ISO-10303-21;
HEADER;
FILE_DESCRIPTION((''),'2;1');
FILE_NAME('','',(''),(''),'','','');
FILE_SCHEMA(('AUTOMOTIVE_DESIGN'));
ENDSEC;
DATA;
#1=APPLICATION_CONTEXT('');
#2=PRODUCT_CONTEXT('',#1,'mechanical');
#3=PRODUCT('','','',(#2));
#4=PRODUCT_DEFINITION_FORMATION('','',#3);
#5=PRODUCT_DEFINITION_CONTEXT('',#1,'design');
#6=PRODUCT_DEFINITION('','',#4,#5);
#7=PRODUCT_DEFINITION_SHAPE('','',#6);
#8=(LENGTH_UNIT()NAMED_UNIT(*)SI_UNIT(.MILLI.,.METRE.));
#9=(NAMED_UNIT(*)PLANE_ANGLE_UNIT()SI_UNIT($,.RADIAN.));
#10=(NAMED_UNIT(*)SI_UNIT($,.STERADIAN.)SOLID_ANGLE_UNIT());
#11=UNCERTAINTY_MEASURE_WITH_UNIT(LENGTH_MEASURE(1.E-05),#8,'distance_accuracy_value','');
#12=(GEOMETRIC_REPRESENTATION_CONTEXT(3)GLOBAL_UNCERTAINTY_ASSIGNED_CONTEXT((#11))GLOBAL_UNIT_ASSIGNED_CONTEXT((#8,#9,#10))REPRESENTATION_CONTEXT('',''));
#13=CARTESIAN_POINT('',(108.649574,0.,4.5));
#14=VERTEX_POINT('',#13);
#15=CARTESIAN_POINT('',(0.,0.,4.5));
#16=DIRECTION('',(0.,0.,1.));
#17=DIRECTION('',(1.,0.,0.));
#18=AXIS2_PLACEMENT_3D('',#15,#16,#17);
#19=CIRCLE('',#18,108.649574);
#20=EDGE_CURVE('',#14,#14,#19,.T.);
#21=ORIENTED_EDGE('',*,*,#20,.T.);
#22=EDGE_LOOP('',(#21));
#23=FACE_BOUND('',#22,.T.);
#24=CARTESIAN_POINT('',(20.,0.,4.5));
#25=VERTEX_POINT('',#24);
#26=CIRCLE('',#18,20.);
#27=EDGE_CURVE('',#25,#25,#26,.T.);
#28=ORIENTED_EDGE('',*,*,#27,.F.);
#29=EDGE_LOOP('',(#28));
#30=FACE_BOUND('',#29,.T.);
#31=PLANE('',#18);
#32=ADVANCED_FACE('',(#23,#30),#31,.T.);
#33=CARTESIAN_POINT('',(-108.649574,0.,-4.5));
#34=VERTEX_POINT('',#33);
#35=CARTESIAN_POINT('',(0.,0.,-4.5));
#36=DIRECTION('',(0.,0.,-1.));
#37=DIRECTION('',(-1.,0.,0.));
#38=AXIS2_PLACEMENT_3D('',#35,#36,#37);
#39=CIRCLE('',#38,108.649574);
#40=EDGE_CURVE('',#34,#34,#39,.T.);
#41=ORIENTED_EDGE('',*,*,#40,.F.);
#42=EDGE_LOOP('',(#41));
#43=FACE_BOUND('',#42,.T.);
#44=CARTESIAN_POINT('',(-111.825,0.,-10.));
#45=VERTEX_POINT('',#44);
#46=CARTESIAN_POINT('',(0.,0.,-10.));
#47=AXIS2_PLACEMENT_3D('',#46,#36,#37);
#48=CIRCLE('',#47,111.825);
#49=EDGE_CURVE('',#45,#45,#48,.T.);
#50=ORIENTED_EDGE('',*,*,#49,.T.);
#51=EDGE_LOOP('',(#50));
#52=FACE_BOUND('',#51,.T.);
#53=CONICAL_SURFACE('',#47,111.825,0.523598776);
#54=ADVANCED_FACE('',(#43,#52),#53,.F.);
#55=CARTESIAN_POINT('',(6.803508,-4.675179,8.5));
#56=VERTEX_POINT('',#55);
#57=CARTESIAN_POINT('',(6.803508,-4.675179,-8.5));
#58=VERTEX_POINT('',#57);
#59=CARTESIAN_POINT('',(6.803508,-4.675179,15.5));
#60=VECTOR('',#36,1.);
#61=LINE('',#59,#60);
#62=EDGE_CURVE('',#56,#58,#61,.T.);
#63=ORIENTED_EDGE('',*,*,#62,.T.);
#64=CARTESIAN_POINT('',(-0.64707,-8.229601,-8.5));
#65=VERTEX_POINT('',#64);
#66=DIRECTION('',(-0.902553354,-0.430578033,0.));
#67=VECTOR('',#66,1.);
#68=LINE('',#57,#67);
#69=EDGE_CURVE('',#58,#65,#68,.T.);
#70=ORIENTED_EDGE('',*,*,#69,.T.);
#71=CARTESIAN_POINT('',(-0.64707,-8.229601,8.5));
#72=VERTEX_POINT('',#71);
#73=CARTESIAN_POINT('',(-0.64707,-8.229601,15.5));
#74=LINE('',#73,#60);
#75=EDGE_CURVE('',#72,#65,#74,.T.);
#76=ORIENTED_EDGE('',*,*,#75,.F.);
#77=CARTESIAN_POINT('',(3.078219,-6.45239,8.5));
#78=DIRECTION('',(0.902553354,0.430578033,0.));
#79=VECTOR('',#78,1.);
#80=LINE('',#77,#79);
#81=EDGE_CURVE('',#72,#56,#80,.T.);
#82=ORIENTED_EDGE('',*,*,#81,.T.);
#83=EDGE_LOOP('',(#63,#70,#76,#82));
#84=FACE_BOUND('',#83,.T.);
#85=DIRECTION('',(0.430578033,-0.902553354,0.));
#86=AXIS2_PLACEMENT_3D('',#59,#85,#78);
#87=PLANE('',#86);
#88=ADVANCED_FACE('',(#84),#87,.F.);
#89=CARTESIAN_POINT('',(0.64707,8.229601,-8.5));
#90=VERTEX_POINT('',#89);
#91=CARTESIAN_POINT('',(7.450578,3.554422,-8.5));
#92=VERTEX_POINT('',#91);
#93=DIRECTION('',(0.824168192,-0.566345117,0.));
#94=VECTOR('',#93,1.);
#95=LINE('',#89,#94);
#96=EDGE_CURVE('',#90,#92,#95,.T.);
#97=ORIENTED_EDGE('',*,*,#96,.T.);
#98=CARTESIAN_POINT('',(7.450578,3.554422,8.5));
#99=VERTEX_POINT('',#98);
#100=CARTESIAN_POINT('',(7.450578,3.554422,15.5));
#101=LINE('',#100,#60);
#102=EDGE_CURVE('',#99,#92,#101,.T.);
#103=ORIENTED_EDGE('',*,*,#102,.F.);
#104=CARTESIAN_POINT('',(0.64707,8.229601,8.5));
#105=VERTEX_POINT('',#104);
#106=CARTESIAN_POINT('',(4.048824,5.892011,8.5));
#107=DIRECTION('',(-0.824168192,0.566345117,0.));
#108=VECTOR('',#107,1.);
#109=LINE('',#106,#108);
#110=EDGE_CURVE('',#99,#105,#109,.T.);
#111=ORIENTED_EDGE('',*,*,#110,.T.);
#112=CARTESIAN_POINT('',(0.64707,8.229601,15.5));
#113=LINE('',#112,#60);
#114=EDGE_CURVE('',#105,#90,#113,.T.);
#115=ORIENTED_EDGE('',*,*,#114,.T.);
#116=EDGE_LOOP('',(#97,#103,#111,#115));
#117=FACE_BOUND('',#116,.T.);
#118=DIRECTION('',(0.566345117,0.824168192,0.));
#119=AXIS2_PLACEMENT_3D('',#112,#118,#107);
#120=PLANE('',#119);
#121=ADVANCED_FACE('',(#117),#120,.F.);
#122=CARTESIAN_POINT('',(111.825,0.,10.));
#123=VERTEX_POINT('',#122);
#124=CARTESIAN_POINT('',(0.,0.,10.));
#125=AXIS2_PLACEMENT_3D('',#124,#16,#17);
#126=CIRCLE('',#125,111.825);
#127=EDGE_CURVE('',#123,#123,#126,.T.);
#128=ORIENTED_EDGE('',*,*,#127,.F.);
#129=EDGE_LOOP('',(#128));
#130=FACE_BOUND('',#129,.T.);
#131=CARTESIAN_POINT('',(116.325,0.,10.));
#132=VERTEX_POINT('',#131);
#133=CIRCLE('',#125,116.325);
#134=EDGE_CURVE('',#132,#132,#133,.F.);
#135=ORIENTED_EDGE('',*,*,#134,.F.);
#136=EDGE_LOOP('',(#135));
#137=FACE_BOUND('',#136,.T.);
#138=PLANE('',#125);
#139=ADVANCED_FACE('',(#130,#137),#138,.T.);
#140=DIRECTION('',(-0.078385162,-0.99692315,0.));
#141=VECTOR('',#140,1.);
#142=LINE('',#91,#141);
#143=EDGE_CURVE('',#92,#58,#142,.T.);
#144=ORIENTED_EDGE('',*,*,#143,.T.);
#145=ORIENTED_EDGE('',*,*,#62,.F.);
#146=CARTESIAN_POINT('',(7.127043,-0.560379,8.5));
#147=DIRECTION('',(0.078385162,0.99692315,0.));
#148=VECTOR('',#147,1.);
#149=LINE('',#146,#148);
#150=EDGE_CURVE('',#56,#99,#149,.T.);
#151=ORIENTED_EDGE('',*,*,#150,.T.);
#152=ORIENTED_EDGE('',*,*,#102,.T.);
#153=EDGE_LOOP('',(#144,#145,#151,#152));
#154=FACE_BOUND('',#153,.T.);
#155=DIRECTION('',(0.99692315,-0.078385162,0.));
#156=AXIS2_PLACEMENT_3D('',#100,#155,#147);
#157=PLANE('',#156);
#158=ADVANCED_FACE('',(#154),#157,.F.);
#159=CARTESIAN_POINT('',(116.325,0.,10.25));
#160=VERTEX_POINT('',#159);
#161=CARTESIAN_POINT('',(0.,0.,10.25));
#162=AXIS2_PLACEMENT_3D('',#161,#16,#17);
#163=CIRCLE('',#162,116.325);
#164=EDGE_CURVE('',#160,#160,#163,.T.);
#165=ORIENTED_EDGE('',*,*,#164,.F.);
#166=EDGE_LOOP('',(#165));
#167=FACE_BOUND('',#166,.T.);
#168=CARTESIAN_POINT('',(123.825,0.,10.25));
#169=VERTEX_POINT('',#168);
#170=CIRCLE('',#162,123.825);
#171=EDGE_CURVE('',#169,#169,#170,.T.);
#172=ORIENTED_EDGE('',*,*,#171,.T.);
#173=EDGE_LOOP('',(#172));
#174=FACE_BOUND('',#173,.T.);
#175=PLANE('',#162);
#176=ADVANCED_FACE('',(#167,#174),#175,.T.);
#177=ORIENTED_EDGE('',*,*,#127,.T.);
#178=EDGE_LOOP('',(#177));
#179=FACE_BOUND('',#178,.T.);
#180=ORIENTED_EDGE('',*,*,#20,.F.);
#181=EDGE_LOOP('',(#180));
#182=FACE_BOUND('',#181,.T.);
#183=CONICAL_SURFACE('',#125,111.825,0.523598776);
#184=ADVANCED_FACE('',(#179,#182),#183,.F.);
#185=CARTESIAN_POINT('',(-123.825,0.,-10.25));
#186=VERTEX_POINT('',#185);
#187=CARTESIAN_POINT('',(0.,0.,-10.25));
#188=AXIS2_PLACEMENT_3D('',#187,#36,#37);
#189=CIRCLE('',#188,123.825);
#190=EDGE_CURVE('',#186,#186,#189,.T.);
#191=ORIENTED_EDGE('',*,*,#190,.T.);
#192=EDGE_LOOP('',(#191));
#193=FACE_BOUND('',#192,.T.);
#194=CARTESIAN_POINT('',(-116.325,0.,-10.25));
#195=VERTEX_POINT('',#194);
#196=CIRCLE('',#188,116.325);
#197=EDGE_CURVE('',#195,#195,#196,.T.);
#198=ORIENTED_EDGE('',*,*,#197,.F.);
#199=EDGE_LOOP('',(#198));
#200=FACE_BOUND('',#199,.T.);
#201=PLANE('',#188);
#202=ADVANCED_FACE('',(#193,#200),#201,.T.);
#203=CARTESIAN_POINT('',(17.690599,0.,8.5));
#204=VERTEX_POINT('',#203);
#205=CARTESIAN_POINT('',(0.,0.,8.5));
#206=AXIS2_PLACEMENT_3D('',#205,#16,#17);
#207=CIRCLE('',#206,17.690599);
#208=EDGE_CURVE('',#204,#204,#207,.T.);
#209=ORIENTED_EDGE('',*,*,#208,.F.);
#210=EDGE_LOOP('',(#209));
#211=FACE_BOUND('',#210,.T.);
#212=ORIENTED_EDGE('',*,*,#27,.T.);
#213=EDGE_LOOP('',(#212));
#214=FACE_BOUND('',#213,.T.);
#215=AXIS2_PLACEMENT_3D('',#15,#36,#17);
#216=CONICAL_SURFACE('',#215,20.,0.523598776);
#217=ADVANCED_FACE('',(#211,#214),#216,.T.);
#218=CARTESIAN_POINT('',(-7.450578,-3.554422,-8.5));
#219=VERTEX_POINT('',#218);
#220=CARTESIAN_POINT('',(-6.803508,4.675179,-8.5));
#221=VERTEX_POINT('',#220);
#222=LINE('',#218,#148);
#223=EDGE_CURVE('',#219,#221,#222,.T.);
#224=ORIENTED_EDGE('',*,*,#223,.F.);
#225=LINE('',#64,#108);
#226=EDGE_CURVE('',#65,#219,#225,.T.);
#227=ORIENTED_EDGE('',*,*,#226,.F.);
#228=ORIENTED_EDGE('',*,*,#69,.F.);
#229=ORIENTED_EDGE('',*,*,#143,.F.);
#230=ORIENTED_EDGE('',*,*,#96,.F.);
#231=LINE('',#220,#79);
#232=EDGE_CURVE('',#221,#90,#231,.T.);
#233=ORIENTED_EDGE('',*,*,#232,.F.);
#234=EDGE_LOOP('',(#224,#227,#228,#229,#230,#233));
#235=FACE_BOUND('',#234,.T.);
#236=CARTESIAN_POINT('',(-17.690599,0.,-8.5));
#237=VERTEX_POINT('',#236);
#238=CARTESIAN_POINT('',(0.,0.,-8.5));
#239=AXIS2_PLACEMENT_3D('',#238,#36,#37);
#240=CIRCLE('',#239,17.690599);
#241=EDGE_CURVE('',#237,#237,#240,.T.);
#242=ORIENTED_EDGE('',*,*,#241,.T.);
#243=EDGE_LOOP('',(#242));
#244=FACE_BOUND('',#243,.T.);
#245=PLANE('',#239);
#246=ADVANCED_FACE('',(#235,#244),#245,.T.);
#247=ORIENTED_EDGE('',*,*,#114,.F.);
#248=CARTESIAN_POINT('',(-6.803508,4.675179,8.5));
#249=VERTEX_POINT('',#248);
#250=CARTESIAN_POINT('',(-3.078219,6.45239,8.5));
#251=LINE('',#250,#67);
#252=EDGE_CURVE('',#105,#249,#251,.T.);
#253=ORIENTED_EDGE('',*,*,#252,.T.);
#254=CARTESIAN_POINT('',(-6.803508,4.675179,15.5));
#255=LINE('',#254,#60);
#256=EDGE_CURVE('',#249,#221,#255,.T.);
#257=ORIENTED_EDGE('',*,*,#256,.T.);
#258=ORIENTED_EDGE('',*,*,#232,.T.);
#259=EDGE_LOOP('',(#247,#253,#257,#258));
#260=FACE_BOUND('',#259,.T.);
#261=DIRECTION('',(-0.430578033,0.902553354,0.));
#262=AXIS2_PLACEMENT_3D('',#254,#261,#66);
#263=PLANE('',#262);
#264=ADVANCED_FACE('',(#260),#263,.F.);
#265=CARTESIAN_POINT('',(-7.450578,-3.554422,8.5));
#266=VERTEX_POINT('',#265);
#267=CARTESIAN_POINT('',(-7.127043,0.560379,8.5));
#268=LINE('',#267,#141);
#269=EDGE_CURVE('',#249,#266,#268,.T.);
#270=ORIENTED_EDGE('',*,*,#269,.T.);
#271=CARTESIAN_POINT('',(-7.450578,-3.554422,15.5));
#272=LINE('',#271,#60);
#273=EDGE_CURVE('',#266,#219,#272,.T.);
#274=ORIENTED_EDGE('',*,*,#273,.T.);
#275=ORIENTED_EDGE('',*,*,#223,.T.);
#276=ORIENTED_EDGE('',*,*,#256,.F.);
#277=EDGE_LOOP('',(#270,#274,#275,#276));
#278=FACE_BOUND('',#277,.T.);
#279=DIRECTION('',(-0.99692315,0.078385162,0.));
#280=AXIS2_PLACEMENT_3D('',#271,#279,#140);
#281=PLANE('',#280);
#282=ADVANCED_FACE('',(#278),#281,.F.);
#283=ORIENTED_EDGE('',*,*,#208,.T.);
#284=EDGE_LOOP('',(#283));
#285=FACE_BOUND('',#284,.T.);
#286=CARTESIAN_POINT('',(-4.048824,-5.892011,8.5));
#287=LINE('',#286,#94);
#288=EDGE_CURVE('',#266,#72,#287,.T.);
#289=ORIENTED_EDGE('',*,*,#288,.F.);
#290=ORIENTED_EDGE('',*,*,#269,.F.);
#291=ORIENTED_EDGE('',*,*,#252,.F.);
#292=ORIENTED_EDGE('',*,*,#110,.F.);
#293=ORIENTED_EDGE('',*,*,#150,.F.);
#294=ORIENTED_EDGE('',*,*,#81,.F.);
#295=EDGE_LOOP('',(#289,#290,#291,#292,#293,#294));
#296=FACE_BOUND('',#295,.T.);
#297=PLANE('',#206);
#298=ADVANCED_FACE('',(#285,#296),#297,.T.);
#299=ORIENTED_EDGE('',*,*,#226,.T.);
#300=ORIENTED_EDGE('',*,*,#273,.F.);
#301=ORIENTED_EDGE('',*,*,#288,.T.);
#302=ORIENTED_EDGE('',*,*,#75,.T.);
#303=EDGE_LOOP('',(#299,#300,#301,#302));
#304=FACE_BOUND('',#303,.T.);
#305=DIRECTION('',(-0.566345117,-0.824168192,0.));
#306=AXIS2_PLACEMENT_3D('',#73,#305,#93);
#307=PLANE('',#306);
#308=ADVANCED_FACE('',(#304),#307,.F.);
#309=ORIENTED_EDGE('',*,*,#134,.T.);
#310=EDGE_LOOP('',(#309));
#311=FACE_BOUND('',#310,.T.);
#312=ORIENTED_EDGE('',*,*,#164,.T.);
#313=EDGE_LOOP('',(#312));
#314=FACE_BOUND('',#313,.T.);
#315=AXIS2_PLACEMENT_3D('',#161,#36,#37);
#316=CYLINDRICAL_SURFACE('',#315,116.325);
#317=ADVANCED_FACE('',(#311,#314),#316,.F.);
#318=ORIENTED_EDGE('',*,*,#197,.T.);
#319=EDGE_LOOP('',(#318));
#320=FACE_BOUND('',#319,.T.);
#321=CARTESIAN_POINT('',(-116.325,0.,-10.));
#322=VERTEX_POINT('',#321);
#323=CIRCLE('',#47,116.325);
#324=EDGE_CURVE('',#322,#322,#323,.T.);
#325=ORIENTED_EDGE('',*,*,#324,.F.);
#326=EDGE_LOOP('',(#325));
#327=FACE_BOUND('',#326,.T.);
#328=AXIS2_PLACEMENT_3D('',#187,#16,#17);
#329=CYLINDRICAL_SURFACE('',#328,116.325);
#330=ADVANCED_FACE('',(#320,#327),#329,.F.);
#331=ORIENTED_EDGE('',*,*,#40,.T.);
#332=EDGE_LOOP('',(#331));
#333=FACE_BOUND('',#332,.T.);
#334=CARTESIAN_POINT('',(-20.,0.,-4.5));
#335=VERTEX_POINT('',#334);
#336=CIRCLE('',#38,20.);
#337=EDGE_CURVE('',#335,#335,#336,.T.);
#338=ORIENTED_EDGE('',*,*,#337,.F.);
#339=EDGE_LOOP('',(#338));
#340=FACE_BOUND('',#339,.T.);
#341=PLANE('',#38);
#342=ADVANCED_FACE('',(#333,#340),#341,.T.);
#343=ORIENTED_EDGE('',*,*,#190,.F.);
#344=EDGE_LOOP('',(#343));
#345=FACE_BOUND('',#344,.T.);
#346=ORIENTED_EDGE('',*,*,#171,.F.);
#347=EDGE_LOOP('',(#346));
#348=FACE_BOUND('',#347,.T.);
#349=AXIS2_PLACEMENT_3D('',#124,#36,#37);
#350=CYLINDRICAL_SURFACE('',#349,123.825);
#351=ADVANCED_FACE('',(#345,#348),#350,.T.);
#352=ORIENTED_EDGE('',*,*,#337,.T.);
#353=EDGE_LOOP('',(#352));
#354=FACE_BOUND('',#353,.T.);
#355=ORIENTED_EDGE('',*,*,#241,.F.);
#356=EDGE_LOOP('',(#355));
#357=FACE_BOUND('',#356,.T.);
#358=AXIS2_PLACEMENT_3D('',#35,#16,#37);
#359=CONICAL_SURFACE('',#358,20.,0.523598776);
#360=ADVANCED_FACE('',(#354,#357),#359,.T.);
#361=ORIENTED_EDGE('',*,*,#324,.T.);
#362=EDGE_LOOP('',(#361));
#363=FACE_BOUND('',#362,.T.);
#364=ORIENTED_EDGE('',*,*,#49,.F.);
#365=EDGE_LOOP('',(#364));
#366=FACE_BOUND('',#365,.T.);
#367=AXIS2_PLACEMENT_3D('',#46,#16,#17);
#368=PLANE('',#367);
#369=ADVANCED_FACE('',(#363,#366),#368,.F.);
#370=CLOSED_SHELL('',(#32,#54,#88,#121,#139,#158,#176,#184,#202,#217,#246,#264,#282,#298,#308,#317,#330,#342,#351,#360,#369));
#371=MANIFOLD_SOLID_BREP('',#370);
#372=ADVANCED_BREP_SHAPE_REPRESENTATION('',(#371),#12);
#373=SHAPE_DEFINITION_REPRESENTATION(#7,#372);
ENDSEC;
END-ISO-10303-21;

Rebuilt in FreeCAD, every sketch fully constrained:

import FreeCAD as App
import Part
import Sketcher
from FreeCAD import Vector


def faces_at(feature, points):
    """Names of the faces that lie closest to the given points."""
    faces = feature.Shape.Faces
    near = lambda p: min(range(len(faces)), key=lambda i: faces[i].distToShape(Part.Vertex(*p))[0])
    return sorted({f"Face{near(p) + 1}" for p in points})


def add_polygon(sketch, points):
    """Adds a closed chain of lines whose ends are joined by coincident constraints."""
    first, n = sketch.GeometryCount, len(points)
    for a, b in zip(points, points[1:] + points[:1]):
        sketch.addGeometry(Part.LineSegment(App.Vector(*a, 0), App.Vector(*b, 0)), False)
    for i in range(n):
        sketch.addConstraint(Sketcher.Constraint("Coincident", first + i, 2, first + (i + 1) % n, 1))

doc = App.newDocument("Part")
body = doc.addObject("PartDesign::Body", "Body")

sketch1 = body.newObject("Sketcher::SketchObject", "Sketch")
sketch1.AttachmentSupport = (doc.getObject("XY_Plane"), [""])
sketch1.MapMode = "FlatFace"
sketch1.addGeometry(Part.Circle(Vector(0, 0, 0), Vector(0, 0, 1), 124), False)
sketch1.addConstraint([
    Sketcher.Constraint("Coincident", 0, 3, -1, 1),
    Sketcher.Constraint("Diameter", 0, 247.65),
])
pad1 = body.newObject("PartDesign::Pad", "Pad")
pad1.Profile = sketch1
pad1.Length = 20
pad1.Midplane = True
body2 = doc.addObject("PartDesign::Body", "Body001")

sketch2 = body2.newObject("Sketcher::SketchObject", "Sketch001")
sketch2.AttachmentSupport = (doc.getObject("XY_Plane001"), [""])
sketch2.MapMode = "FlatFace"
sketch2.AttachmentOffset = App.Placement(Vector(0, 0, 10), App.Rotation())
sketch2.addGeometry(Part.Circle(Vector(0, 0, 0), Vector(0, 0, 1), 112), False)
sketch2.addConstraint([
    Sketcher.Constraint("Coincident", 0, 3, -1, 1),
    Sketcher.Constraint("Diameter", 0, 223.65),
])
pad2 = body2.newObject("PartDesign::Pad", "Pad001")
pad2.Profile = sketch2
pad2.Length = 5.5
pad2.Reversed = True
doc.recompute()

datumplane = body2.newObject("PartDesign::Plane", "DatumPlane")
datumplane.AttachmentSupport = (doc.getObject("XY_Plane001"), [""])
datumplane.MapMode = "FlatFace"
datumplane.AttachmentOffset = App.Placement(Vector(0, 0, 10), App.Rotation())
draft = body2.newObject("PartDesign::Draft", "Draft")
draft.Base = (pad2, faces_at(pad2, [(-111.825, 0, 7.25)]))
draft.NeutralPlane = (datumplane, [""])
draft.Angle = 30
draft.Reversed = True
doc.recompute()

boolean = body.newObject("PartDesign::Boolean", "Boolean")
boolean.Type = "Cut"
boolean.addObjects([body2])
body3 = doc.addObject("PartDesign::Body", "Body002")

sketch3 = body3.newObject("Sketcher::SketchObject", "Sketch002")
sketch3.AttachmentSupport = (doc.getObject("XY_Plane002"), [""])
sketch3.MapMode = "FlatFace"
sketch3.AttachmentOffset = App.Placement(Vector(0, 0, -10), App.Rotation())
sketch3.addGeometry(Part.Circle(Vector(0, 0, 0), Vector(0, 0, 1), 112), False)
sketch3.addConstraint([
    Sketcher.Constraint("Coincident", 0, 3, -1, 1),
    Sketcher.Constraint("Diameter", 0, 223.65),
])
pad3 = body3.newObject("PartDesign::Pad", "Pad002")
pad3.Profile = sketch3
pad3.Length = 5.5
doc.recompute()

datumplane2 = body3.newObject("PartDesign::Plane", "DatumPlane001")
datumplane2.AttachmentSupport = (doc.getObject("XY_Plane002"), [""])
datumplane2.MapMode = "FlatFace"
datumplane2.AttachmentOffset = App.Placement(Vector(0, 0, -10), App.Rotation())
draft2 = body3.newObject("PartDesign::Draft", "Draft001")
draft2.Base = (pad3, faces_at(pad3, [(111.825, 0, -7.25)]))
draft2.NeutralPlane = (datumplane2, [""])
draft2.Angle = 30
draft2.Reversed = False
doc.recompute()

boolean2 = body.newObject("PartDesign::Boolean", "Boolean001")
boolean2.Type = "Cut"
boolean2.addObjects([body3])

sketch4 = body.newObject("Sketcher::SketchObject", "Sketch003")
sketch4.AttachmentSupport = (doc.getObject("XY_Plane"), [""])
sketch4.MapMode = "FlatFace"
sketch4.AttachmentOffset = App.Placement(Vector(0, 0, 4.5), App.Rotation())
sketch4.addGeometry(Part.Circle(Vector(0, 0, 0), Vector(0, 0, 1), 20), False)
sketch4.addConstraint([
    Sketcher.Constraint("Coincident", 0, 3, -1, 1),
    Sketcher.Constraint("Diameter", 0, 40.0),
])
pad4 = body.newObject("PartDesign::Pad", "Pad003")
pad4.Profile = sketch4
pad4.Length = 4
pad4.TaperAngle = -30

sketch5 = body.newObject("Sketcher::SketchObject", "Sketch004")
sketch5.AttachmentSupport = (doc.getObject("XY_Plane"), [""])
sketch5.MapMode = "FlatFace"
sketch5.AttachmentOffset = App.Placement(Vector(0, 0, -4.5), App.Rotation())
sketch5.addGeometry(Part.Circle(Vector(0, 0, 0), Vector(0, 0, 1), 20), False)
sketch5.addConstraint([
    Sketcher.Constraint("Coincident", 0, 3, -1, 1),
    Sketcher.Constraint("Diameter", 0, 40.0),
])
pad5 = body.newObject("PartDesign::Pad", "Pad004")
pad5.Profile = sketch5
pad5.Length = 4
pad5.Reversed = True
pad5.TaperAngle = -30

sketch6 = body.newObject("Sketcher::SketchObject", "Sketch005")
sketch6.AttachmentSupport = (doc.getObject("XY_Plane"), [""])
sketch6.MapMode = "FlatFace"
sketch6.AttachmentOffset = App.Placement(Vector(0, 0, -8.5), App.Rotation())
add_polygon(sketch6, [(-7.450578, -3.554422), (-6.803508, 4.675179), (0.64707, 8.229601), (7.450578, 3.554422), (6.803508, -4.675179), (-0.64707, -8.229601)])
sketch6.addConstraint([
    Sketcher.Constraint("Distance", 0, 8.255),
    Sketcher.Constraint("Distance", 1, 8.255),
    Sketcher.Constraint("Distance", 2, 8.255),
    Sketcher.Constraint("Distance", 3, 8.255),
    Sketcher.Constraint("Distance", 4, 8.255),
    Sketcher.Constraint("Distance", 5, 8.255),
    Sketcher.Constraint("DistanceY", -1, 1, 1, 2, 8.229601),
    Sketcher.Constraint("DistanceY", 4, 2, -1, 1, 8.229601),
    Sketcher.Constraint("DistanceY", 3, 2, 2, 2, 8.229601),
    Sketcher.Constraint("DistanceY", 5, 2, 0, 2, 8.229601),
    Sketcher.Constraint("DistanceX", 0, 2, -1, 1, 6.803508),
    Sketcher.Constraint("DistanceY", -1, 1, 0, 2, 4.675179),
])
pocket1 = body.newObject("PartDesign::Pocket", "Pocket")
pocket1.Profile = sketch6
pocket1.Length = 24
pocket1.Reversed = True

sketch7 = body.newObject("Sketcher::SketchObject", "Sketch006")
sketch7.AttachmentSupport = (doc.getObject("XY_Plane"), [""])
sketch7.MapMode = "FlatFace"
sketch7.AttachmentOffset = App.Placement(Vector(0, 0, -10), App.Rotation())
sketch7.addGeometry([
    Part.Circle(Vector(0, 0, 0), Vector(0, 0, 1), 124),
    Part.Circle(Vector(0, 0, 0), Vector(0, 0, 1), 116),
], False)
sketch7.addConstraint([
    Sketcher.Constraint("Coincident", 0, 3, -1, 1),
    Sketcher.Constraint("Coincident", 1, 3, -1, 1),
    Sketcher.Constraint("Diameter", 0, 247.65),
    Sketcher.Constraint("Diameter", 1, 232.65),
])
pad6 = body.newObject("PartDesign::Pad", "Pad005")
pad6.Profile = sketch7
pad6.Length = 0.25
pad6.Reversed = True

sketch8 = body.newObject("Sketcher::SketchObject", "Sketch007")
sketch8.AttachmentSupport = (doc.getObject("XY_Plane"), [""])
sketch8.MapMode = "FlatFace"
sketch8.AttachmentOffset = App.Placement(Vector(0, 0, 10.25), App.Rotation())
sketch8.addGeometry([
    Part.Circle(Vector(0, 0, 0), Vector(0, 0, 1), 124),
    Part.Circle(Vector(0, 0, 0), Vector(0, 0, 1), 116),
], False)
sketch8.addConstraint([
    Sketcher.Constraint("Coincident", 0, 3, -1, 1),
    Sketcher.Constraint("Coincident", 1, 3, -1, 1),
    Sketcher.Constraint("Diameter", 0, 247.65),
    Sketcher.Constraint("Diameter", 1, 232.65),
])
pad7 = body.newObject("PartDesign::Pad", "Pad006")
pad7.Profile = sketch8
pad7.Length = 0.25
pad7.Reversed = True

doc.recompute()
